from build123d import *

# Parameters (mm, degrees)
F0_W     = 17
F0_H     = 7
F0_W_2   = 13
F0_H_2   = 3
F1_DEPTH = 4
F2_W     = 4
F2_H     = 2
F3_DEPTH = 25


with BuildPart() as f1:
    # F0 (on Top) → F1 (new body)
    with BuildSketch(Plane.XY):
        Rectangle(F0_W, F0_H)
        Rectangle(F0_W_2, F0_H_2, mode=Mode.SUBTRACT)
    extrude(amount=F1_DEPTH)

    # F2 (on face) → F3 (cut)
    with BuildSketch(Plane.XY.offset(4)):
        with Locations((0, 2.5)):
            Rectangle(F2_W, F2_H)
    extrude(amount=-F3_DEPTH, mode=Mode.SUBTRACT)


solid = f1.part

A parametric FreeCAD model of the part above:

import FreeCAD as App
import Part
import Sketcher

V = App.Vector

doc = App.newDocument("Part")
body = doc.addObject("PartDesign::Body", "Body")

# Sketch on XY plane
sketch1 = body.newObject("Sketcher::SketchObject", "Sketch")
sketch1.AttachmentSupport = (doc.getObject("XY_Plane"), [""])
sketch1.MapMode = "FlatFace"
sketch1.addGeometry([
    Part.LineSegment(V(-8.5, 3.5, 0), V(-8.5, -3.5, 0)),  # 0
    Part.LineSegment(V(-8.5, -3.5, 0), V(8.5, -3.5, 0)),  # 1
    Part.LineSegment(V(8.5, -3.5, 0), V(8.5, 3.5, 0)),  # 2
    Part.LineSegment(V(8.5, 3.5, 0), V(-8.5, 3.5, 0)),  # 3
    Part.LineSegment(V(6.5, -1.5, 0), V(-6.5, -1.5, 0)),  # 4
    Part.LineSegment(V(-6.5, -1.5, 0), V(-6.5, 1.5, 0)),  # 5
    Part.LineSegment(V(-6.5, 1.5, 0), V(6.5, 1.5, 0)),  # 6
    Part.LineSegment(V(6.5, 1.5, 0), V(6.5, -1.5, 0)),  # 7
], False)
sketch1.addConstraint([
    Sketcher.Constraint("Coincident", 0, 2, 1, 1),
    Sketcher.Constraint("Coincident", 1, 2, 2, 1),
    Sketcher.Constraint("Coincident", 2, 2, 3, 1),
    Sketcher.Constraint("Coincident", 3, 2, 0, 1),
    Sketcher.Constraint("Coincident", 4, 2, 5, 1),
    Sketcher.Constraint("Coincident", 5, 2, 6, 1),
    Sketcher.Constraint("Coincident", 6, 2, 7, 1),
    Sketcher.Constraint("Coincident", 7, 2, 4, 1),
    Sketcher.Constraint("Vertical", 0),
    Sketcher.Constraint("Horizontal", 1),
    Sketcher.Constraint("Vertical", 2),
    Sketcher.Constraint("Horizontal", 3),
    Sketcher.Constraint("Horizontal", 4),
    Sketcher.Constraint("Vertical", 5),
    Sketcher.Constraint("Horizontal", 6),
    Sketcher.Constraint("Vertical", 7),
    Sketcher.Constraint("Symmetric", 0, 2, 2, 2, -1, 1),
    Sketcher.Constraint("Symmetric", 4, 2, 6, 2, -1, 1),
    Sketcher.Constraint("DistanceX", 1, 1, 1, 2, 17.0),
    Sketcher.Constraint("DistanceX", 4, 2, 4, 1, 13.0),
    Sketcher.Constraint("DistanceY", 0, 2, 0, 1, 7.0),
    Sketcher.Constraint("DistanceY", 5, 1, 5, 2, 3.0),
])
pad1 = body.newObject("PartDesign::Pad", "Pad")
pad1.Profile = sketch1
pad1.Length = 4

# Sketch on XY plane
sketch2 = body.newObject("Sketcher::SketchObject", "Sketch001")
sketch2.AttachmentSupport = (doc.getObject("XY_Plane"), [""])
sketch2.MapMode = "FlatFace"
sketch2.AttachmentOffset = App.Placement(V(0, 0, 4), App.Rotation())
sketch2.addGeometry([
    Part.LineSegment(V(-2, 3.5, 0), V(-2, 1.5, 0)),
    Part.LineSegment(V(-2, 1.5, 0), V(2, 1.5, 0)),
    Part.LineSegment(V(2, 1.5, 0), V(2, 3.5, 0)),
    Part.LineSegment(V(2, 3.5, 0), V(-2, 3.5, 0)),
], False)
sketch2.addConstraint([
    Sketcher.Constraint("Coincident", 0, 2, 1, 1),
    Sketcher.Constraint("Coincident", 1, 2, 2, 1),
    Sketcher.Constraint("Coincident", 2, 2, 3, 1),
    Sketcher.Constraint("Coincident", 3, 2, 0, 1),
    Sketcher.Constraint("Vertical", 0),
    Sketcher.Constraint("Horizontal", 1),
    Sketcher.Constraint("Vertical", 2),
    Sketcher.Constraint("Horizontal", 3),
    Sketcher.Constraint("DistanceX", 1, 1, 1, 2, 4.0),
    Sketcher.Constraint("DistanceY", 0, 2, 0, 1, 2.0),
    Sketcher.Constraint("DistanceX", 0, 2, -1, 1, 2.0),
    Sketcher.Constraint("DistanceY", -1, 1, 0, 2, 1.5),
])
pocket1 = body.newObject("PartDesign::Pocket", "Pocket")
pocket1.Profile = sketch2
pocket1.Length = 25

doc.recompute()
